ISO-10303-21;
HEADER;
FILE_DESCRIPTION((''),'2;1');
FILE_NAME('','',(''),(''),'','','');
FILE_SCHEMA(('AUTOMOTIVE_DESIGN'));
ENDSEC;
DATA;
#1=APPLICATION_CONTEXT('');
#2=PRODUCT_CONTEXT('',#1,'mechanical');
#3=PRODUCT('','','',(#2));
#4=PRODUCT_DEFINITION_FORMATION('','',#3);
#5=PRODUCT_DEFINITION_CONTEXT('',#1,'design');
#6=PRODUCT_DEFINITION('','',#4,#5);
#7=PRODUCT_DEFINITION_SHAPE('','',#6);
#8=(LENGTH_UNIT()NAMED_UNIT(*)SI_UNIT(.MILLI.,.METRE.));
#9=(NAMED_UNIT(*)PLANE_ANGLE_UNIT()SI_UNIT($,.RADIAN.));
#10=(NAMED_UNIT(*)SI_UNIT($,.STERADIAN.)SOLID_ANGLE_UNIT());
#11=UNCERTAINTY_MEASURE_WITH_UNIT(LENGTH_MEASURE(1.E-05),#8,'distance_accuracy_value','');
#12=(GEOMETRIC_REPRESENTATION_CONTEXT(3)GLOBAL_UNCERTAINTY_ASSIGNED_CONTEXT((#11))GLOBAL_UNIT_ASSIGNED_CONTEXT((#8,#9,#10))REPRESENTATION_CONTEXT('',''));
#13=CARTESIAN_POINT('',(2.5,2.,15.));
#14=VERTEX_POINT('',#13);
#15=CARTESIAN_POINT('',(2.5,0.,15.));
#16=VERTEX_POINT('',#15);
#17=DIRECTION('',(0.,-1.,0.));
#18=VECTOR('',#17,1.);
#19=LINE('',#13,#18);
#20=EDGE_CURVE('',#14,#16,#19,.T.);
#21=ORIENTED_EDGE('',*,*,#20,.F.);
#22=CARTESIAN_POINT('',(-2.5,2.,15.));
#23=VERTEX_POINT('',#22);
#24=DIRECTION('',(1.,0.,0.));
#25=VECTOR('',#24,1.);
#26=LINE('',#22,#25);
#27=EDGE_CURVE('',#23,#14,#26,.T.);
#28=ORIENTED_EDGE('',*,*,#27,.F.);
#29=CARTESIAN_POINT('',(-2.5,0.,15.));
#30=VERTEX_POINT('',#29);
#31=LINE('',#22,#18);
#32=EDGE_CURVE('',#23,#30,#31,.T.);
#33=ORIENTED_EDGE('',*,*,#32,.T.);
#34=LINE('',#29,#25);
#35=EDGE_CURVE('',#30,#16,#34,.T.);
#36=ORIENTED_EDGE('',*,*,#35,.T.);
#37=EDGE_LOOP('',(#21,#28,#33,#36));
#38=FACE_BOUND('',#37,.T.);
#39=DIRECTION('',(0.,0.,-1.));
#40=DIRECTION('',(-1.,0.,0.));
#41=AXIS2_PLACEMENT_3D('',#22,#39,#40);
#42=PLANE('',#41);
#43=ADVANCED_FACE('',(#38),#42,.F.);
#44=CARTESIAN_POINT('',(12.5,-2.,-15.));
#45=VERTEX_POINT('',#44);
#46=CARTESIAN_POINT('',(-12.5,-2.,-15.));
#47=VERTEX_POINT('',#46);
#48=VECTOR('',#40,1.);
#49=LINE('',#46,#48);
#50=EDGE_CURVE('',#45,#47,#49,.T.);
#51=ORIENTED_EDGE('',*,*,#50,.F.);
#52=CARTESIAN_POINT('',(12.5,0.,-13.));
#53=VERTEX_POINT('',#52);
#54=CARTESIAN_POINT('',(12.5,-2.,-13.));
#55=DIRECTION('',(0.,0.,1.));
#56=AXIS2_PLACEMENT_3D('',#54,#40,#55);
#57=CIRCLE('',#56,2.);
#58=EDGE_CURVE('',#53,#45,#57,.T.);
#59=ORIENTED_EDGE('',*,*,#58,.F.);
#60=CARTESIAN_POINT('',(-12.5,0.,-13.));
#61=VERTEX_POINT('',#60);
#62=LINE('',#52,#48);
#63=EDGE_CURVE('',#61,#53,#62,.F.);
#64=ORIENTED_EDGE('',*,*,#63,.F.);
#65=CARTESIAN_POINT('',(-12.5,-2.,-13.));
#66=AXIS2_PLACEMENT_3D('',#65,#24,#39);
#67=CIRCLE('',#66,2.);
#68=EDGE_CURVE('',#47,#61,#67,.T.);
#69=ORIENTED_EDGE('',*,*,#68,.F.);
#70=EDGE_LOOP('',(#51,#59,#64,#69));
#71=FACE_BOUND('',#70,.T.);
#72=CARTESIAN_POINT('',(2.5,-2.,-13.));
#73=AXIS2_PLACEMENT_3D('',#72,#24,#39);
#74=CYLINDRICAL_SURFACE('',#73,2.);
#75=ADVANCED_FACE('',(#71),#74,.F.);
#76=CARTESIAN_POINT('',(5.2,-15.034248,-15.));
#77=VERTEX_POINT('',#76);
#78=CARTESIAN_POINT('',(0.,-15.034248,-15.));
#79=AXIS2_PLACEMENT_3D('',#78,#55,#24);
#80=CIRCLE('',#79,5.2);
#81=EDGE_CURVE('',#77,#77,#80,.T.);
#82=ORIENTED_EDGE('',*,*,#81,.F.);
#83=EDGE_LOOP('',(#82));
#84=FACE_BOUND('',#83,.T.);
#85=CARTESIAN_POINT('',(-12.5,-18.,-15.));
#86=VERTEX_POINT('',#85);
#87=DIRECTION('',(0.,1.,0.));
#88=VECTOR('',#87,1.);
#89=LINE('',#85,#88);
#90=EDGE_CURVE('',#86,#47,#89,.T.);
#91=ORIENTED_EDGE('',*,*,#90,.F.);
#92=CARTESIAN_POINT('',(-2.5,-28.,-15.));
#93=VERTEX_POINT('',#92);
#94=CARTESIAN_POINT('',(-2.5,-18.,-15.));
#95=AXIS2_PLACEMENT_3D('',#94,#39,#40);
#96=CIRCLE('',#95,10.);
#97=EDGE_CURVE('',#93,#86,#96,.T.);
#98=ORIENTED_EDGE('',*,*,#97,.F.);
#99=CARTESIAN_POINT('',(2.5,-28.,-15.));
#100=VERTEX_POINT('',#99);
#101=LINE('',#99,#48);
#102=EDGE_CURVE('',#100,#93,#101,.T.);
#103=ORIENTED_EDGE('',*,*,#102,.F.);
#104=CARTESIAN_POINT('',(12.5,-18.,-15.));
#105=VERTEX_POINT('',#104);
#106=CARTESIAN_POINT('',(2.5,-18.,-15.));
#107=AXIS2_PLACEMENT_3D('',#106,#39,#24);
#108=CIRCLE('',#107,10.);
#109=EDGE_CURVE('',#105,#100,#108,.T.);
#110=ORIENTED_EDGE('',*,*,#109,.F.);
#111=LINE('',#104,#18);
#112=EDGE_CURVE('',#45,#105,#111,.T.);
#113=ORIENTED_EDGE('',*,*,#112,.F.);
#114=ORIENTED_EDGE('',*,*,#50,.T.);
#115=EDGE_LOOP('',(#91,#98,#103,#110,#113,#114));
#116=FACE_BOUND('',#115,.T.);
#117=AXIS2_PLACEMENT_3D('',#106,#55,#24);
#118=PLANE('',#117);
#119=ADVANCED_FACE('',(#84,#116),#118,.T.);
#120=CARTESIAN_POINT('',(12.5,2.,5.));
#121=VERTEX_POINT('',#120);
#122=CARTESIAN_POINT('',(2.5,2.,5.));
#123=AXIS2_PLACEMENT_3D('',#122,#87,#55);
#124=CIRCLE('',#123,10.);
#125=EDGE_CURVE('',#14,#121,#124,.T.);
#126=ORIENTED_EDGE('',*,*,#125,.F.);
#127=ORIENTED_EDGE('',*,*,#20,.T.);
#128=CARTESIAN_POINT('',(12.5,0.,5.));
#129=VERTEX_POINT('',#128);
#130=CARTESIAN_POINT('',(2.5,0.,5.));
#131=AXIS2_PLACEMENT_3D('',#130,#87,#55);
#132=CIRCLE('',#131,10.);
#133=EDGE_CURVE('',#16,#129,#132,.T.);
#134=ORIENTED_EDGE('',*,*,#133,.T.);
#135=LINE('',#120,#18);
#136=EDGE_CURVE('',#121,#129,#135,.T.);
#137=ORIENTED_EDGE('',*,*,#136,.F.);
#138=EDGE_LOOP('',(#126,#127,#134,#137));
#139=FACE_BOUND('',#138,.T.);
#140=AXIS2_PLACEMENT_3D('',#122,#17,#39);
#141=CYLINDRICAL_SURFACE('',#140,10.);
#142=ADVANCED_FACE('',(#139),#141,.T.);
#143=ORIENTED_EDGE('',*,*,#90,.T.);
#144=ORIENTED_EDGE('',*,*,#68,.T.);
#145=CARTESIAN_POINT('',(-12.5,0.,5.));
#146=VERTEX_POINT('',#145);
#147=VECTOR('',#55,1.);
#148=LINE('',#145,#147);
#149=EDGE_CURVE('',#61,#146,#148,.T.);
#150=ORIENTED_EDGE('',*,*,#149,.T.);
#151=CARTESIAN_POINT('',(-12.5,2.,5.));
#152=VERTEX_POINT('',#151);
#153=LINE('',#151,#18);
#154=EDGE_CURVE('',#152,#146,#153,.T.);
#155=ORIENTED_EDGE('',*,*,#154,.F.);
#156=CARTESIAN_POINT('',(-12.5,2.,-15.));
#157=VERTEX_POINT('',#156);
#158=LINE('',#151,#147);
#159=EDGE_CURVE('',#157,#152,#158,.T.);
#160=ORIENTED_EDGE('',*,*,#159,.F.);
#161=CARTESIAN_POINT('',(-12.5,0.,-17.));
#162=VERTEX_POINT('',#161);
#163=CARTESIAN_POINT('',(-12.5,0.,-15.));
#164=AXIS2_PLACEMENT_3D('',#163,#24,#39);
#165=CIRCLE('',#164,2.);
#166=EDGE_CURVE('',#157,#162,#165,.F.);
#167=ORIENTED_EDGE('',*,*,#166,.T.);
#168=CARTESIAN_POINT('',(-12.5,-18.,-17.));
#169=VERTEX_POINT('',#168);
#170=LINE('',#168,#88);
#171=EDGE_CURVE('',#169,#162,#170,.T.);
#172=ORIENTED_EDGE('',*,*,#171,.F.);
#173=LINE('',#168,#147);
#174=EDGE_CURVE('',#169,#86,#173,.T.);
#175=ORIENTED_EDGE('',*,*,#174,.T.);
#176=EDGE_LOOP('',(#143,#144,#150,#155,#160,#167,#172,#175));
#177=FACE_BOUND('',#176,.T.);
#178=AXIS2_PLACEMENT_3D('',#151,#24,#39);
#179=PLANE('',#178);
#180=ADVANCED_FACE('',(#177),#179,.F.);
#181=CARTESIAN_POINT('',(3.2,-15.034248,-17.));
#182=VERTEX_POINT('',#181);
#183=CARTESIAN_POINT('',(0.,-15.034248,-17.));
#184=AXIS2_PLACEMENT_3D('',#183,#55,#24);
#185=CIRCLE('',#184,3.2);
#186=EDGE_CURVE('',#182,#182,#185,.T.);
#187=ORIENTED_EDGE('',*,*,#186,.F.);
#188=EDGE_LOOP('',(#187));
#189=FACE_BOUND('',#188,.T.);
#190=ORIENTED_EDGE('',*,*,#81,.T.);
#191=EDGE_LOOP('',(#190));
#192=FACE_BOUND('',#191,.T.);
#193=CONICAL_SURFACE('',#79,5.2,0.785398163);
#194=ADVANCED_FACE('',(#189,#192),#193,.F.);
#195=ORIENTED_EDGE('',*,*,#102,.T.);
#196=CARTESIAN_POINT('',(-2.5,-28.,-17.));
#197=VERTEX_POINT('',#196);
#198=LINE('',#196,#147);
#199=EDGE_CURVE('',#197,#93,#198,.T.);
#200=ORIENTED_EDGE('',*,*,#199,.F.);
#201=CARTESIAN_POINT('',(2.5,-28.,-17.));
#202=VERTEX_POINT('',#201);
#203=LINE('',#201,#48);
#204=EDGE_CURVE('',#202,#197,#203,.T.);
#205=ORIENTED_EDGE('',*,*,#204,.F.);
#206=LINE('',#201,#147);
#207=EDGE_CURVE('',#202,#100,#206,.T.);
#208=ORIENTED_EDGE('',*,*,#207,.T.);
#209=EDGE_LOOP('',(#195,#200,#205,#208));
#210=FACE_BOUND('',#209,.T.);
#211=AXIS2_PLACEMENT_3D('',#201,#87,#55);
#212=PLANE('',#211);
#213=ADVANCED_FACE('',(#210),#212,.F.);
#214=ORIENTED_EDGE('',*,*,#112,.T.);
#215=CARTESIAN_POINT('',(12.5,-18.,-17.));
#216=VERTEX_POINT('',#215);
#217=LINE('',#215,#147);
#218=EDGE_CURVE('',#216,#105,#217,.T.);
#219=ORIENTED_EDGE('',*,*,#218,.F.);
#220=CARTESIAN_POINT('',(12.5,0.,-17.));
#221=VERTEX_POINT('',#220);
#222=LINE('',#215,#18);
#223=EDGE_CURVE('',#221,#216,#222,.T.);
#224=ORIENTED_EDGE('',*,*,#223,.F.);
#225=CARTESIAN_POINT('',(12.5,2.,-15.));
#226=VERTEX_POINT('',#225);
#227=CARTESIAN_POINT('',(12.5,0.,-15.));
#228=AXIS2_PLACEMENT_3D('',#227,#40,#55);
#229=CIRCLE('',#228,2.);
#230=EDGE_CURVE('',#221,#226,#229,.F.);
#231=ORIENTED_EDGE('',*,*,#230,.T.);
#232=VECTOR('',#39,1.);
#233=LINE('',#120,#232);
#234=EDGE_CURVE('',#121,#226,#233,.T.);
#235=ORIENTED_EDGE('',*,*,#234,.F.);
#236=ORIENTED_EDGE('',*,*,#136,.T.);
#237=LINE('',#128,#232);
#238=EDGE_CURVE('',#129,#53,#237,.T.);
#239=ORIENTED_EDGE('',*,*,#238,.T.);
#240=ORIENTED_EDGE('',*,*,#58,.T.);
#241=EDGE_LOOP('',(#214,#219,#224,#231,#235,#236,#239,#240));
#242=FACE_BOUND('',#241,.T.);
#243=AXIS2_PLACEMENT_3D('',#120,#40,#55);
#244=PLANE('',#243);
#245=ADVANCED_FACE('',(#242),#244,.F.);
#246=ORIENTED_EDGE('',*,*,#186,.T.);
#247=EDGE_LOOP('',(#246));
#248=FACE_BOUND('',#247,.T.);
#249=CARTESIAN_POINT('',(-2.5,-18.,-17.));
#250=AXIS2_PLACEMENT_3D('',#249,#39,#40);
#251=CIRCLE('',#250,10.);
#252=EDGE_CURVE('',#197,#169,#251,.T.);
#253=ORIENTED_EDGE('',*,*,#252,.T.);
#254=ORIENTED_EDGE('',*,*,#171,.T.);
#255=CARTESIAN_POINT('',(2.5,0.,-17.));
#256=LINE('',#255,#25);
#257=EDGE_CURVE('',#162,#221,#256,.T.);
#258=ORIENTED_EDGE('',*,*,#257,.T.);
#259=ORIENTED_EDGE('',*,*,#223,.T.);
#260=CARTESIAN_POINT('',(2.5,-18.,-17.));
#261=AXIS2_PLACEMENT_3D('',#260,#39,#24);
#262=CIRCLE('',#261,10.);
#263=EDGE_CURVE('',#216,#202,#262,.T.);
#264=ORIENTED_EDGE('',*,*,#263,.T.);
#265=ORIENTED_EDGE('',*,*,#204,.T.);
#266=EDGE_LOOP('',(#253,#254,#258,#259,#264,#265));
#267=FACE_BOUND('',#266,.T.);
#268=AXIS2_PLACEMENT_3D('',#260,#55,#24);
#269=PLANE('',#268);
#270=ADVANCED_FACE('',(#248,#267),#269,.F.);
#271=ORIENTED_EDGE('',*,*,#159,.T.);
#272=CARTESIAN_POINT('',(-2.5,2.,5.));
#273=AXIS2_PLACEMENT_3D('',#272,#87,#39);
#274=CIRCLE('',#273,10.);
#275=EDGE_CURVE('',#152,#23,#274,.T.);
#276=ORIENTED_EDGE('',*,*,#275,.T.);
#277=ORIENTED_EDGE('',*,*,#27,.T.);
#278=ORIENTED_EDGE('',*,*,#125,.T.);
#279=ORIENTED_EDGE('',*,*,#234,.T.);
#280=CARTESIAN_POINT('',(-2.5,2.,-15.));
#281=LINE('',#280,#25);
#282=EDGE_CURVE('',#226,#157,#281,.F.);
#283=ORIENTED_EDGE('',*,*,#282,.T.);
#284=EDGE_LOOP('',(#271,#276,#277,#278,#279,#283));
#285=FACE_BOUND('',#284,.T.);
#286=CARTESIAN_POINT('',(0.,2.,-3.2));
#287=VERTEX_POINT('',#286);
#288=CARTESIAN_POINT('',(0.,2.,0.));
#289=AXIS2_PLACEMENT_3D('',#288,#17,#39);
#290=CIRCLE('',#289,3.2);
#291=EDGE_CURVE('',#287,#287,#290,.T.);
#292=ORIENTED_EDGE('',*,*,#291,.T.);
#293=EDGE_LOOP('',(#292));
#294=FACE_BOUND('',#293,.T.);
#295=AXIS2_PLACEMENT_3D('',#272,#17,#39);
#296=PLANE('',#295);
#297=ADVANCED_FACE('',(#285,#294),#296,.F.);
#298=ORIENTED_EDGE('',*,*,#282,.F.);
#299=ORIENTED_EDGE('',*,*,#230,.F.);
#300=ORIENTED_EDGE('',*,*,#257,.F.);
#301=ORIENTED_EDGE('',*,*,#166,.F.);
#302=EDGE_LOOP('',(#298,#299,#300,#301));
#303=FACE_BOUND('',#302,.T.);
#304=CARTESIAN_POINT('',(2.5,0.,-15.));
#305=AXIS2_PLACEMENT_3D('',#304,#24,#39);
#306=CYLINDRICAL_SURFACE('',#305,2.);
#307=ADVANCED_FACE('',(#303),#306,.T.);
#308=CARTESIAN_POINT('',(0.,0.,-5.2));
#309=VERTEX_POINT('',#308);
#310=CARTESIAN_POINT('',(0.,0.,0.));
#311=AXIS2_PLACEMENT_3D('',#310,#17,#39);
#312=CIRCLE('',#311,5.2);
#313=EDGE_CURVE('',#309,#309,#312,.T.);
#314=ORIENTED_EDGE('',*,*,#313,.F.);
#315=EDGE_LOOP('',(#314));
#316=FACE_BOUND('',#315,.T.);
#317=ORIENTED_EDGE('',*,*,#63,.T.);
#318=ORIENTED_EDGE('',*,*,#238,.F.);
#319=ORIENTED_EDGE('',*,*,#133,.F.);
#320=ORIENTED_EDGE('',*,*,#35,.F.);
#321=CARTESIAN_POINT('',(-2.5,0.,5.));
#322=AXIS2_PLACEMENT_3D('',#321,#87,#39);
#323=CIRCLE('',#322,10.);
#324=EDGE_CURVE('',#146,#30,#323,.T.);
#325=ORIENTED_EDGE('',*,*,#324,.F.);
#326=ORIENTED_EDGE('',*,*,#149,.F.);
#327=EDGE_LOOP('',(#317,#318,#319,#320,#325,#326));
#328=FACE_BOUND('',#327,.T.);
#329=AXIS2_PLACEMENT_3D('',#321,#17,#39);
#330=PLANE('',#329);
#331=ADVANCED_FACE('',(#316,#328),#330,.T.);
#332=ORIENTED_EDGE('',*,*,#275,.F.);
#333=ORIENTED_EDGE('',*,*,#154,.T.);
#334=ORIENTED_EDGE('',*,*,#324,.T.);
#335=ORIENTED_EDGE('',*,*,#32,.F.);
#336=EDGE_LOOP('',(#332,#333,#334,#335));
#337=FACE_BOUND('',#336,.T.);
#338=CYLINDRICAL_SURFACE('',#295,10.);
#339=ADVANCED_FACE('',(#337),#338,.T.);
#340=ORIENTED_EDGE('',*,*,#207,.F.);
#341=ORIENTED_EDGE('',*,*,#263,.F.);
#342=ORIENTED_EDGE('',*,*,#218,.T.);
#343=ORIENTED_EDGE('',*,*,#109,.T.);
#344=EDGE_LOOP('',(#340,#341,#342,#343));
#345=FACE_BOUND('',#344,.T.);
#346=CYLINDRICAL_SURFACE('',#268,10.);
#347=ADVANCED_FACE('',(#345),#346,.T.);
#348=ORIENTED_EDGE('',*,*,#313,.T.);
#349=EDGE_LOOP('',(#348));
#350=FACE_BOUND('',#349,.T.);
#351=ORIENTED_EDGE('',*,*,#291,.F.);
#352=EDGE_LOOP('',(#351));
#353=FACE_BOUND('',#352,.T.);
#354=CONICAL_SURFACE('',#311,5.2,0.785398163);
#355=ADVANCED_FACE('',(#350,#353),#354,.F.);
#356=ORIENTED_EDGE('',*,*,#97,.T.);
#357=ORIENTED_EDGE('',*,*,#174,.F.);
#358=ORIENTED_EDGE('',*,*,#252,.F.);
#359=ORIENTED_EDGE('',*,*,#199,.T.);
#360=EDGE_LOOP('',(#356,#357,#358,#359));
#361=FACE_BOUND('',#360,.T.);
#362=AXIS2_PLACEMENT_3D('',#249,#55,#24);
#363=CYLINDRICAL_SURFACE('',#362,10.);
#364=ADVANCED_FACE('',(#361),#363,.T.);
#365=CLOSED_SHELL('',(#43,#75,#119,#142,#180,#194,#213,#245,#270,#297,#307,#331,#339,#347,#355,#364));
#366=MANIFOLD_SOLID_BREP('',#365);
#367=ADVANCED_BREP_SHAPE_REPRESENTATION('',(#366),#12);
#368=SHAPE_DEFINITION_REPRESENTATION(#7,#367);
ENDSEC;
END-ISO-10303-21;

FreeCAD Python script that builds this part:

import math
import FreeCAD as App
import Part
import Sketcher
from FreeCAD import Vector
Q = App.Units.Quantity


def edges_at(feature, points):
    """Names of the edges that pass closest to the given points."""
    edges = feature.Shape.Edges
    near = lambda p: min(range(len(edges)), key=lambda i: edges[i].distToShape(Part.Vertex(*p))[0])
    return sorted({f"Edge{near(p) + 1}" for p in points})

doc = App.newDocument("Part")
body = doc.addObject("PartDesign::Body", "Body")

# Sketch on XZ plane
sketch1 = doc.addObject("Sketcher::SketchObject", "Sketch")
body.addObject(sketch1)
sketch1.AttachmentSupport = (doc.XZ_Plane, [""])
sketch1.MapMode = "FlatFace"
sketch1.addGeometry([
    Part.LineSegment(Vector(-2, 15, 0), Vector(2, 15, 0)),  # 0
    Part.ArcOfCircle(Part.Circle(Vector(2, 5, 0), Vector(0, 0, 1), 10), math.radians(0), math.radians(90)),  # 1
    Part.LineSegment(Vector(12, 5, 0), Vector(12, -15, 0)),  # 2
    Part.LineSegment(Vector(12, -15, 0), Vector(-12, -15, 0)),  # 3
    Part.LineSegment(Vector(-12, -15, 0), Vector(-12, 5, 0)),  # 4
    Part.ArcOfCircle(Part.Circle(Vector(-2, 5, 0), Vector(0, 0, 1), 10), math.radians(90), math.radians(180)),  # 5
], False)
sketch1.addConstraint([
    Sketcher.Constraint("Tangent", 0, 2, 1, 2),
    Sketcher.Constraint("Tangent", 1, 1, 2, 1),
    Sketcher.Constraint("Coincident", 2, 2, 3, 1),
    Sketcher.Constraint("Coincident", 3, 2, 4, 1),
    Sketcher.Constraint("Tangent", 4, 2, 5, 2),
    Sketcher.Constraint("Tangent", 5, 1, 0, 1),
    Sketcher.Constraint("Horizontal", 0),
    Sketcher.Constraint("Vertical", 2),
    Sketcher.Constraint("Horizontal", 3),
    Sketcher.Constraint("Vertical", 4),
    Sketcher.Constraint("Equal", 1, 5),
    Sketcher.Constraint("Radius", 1, Q("10 mm")),
    Sketcher.Constraint("DistanceX", 0, 1, 0, 2, Q("5 mm")),
    Sketcher.Constraint("DistanceY", 2, 2, 2, 1, Q("20 mm")),
    Sketcher.Constraint("DistanceY", -1, 1, 1, 3, Q("5 mm")),
    Sketcher.Constraint("DistanceX", -1, 1, 1, 3, Q("2.5 mm")),
])
pad1 = doc.addObject("PartDesign::Pad", "Pad")
body.addObject(pad1)
pad1.Profile = sketch1
pad1.Length = 2
pad1.Reversed = True

# Sketch on XY plane
sketch2 = doc.addObject("Sketcher::SketchObject", "Sketch001")
body.addObject(sketch2)
sketch2.AttachmentSupport = (doc.XY_Plane, [""])
sketch2.MapMode = "FlatFace"
sketch2.AttachmentOffset = App.Placement(Vector(0, 0, -15), App.Rotation())
sketch2.addGeometry([
    Part.LineSegment(Vector(2, -28, 0), Vector(-2, -28, 0)),  # 0
    Part.ArcOfCircle(Part.Circle(Vector(-2, -18, 0), Vector(0, 0, 1), 10), math.radians(180), math.radians(270)),  # 1
    Part.LineSegment(Vector(-12, -18, 0), Vector(-12, 2, 0)),  # 2
    Part.LineSegment(Vector(-12, 2, 0), Vector(12, 2, 0)),  # 3
    Part.LineSegment(Vector(12, 2, 0), Vector(12, -18, 0)),  # 4
    Part.ArcOfCircle(Part.Circle(Vector(2, -18, 0), Vector(0, 0, 1), 10), math.radians(-90), math.radians(0)),  # 5
], False)
sketch2.addConstraint([
    Sketcher.Constraint("Tangent", 0, 2, 1, 2),
    Sketcher.Constraint("Tangent", 1, 1, 2, 1),
    Sketcher.Constraint("Coincident", 2, 2, 3, 1),
    Sketcher.Constraint("Coincident", 3, 2, 4, 1),
    Sketcher.Constraint("Tangent", 4, 2, 5, 2),
    Sketcher.Constraint("Tangent", 5, 1, 0, 1),
    Sketcher.Constraint("Horizontal", 0),
    Sketcher.Constraint("Vertical", 2),
    Sketcher.Constraint("Horizontal", 3),
    Sketcher.Constraint("Vertical", 4),
    Sketcher.Constraint("Equal", 1, 5),
    Sketcher.Constraint("Radius", 1, Q("10 mm")),
    Sketcher.Constraint("DistanceX", 0, 2, 0, 1, Q("5 mm")),
    Sketcher.Constraint("DistanceY", 2, 1, 2, 2, Q("20 mm")),
    Sketcher.Constraint("DistanceY", 1, 3, -1, 1, Q("18 mm")),
    Sketcher.Constraint("DistanceX", 1, 3, -1, 1, Q("2.5 mm")),
])
pad2 = doc.addObject("PartDesign::Pad", "Pad001")
body.addObject(pad2)
pad2.Profile = sketch2
pad2.Length = 2
pad2.Reversed = True
doc.recompute()

fillet = doc.addObject("PartDesign::Fillet", "Fillet")
body.addObject(fillet)
fillet.Base = (pad2, edges_at(pad2, [(0, 0, -15)]))
fillet.Radius = 2
doc.recompute()

fillet2 = doc.addObject("PartDesign::Fillet", "Fillet001")
body.addObject(fillet2)
fillet2.Base = (fillet, edges_at(fillet, [(0, 2, -17)]))
fillet2.Radius = 2

# Sketch on YZ plane
sketch3 = doc.addObject("Sketcher::SketchObject", "Sketch002")
body.addObject(sketch3)
sketch3.AttachmentSupport = (doc.YZ_Plane, [""])
sketch3.MapMode = "FlatFace"
sketch3.addGeometry([
    Part.LineSegment(Vector(-15.03, -17, 0), Vector(-15.03, -15, 0)),  # 0
    Part.LineSegment(Vector(-15.03, -15, 0), Vector(-20.23, -15, 0)),  # 1
    Part.LineSegment(Vector(-20.23, -15, 0), Vector(-17.78, -17.45, 0)),  # 2
    Part.LineSegment(Vector(-17.78, -17.45, 0), Vector(-17.78, -17, 0)),  # 3
    Part.LineSegment(Vector(-17.78, -17, 0), Vector(-15.03, -17, 0)),  # 4
], False)
sketch3.addGeometry(Part.LineSegment(Vector(-15.03, -15, 0), Vector(-15.03, -17.45, 0)), True)  # axis
sketch3.addConstraint([
    Sketcher.Constraint("Coincident", 0, 2, 1, 1),
    Sketcher.Constraint("Coincident", 1, 2, 2, 1),
    Sketcher.Constraint("Coincident", 2, 2, 3, 1),
    Sketcher.Constraint("Coincident", 3, 2, 4, 1),
    Sketcher.Constraint("Coincident", 4, 2, 0, 1),
    Sketcher.Constraint("Vertical", 0),
    Sketcher.Constraint("Horizontal", 1),
    Sketcher.Constraint("Vertical", 3),
    Sketcher.Constraint("Horizontal", 4),
    Sketcher.Constraint("Vertical", 5),
    Sketcher.Constraint("Coincident", 5, 1, 0, 2),
    Sketcher.Constraint("Horizontal", 2, 2, 5, 2),
    Sketcher.Constraint("DistanceY", 0, 1, 0, 2, Q("2 mm")),
    Sketcher.Constraint("Angle", 2, Q("-45 deg")),
    Sketcher.Constraint("DistanceX", 1, 2, 1, 1, Q("5.2 mm")),
    Sketcher.Constraint("DistanceY", 0, 2, -1, 1, Q("15 mm")),
    Sketcher.Constraint("DistanceX", 4, 1, 4, 2, Q("2.75 mm")),
    Sketcher.Constraint("DistanceX", 0, 2, -1, 1, Q("15.034248 mm")),
])
groove = doc.addObject("PartDesign::Groove", "Groove")
body.addObject(groove)
groove.Profile = sketch3
groove.ReferenceAxis = (sketch3, ["Axis0"])
groove.Angle = 360

# Sketch on YZ plane
sketch4 = doc.addObject("Sketcher::SketchObject", "Sketch003")
body.addObject(sketch4)
sketch4.AttachmentSupport = (doc.YZ_Plane, [""])
sketch4.MapMode = "FlatFace"
sketch4.addGeometry([
    Part.LineSegment(Vector(2, 0, 0), Vector(0, 0, 0)),  # 0
    Part.LineSegment(Vector(0, 0, 0), Vector(0, -5.2, 0)),  # 1
    Part.LineSegment(Vector(0, -5.2, 0), Vector(2.45, -2.75, 0)),  # 2
    Part.LineSegment(Vector(2.45, -2.75, 0), Vector(2, -2.75, 0)),  # 3
    Part.LineSegment(Vector(2, -2.75, 0), Vector(2, 0, 0)),  # 4
], False)
sketch4.addConstraint([
    Sketcher.Constraint("Coincident", 0, 2, 1, 1),
    Sketcher.Constraint("Coincident", 1, 2, 2, 1),
    Sketcher.Constraint("Coincident", 2, 2, 3, 1),
    Sketcher.Constraint("Coincident", 3, 2, 4, 1),
    Sketcher.Constraint("Coincident", 4, 2, 0, 1),
    Sketcher.Constraint("Horizontal", 0),
    Sketcher.Constraint("Vertical", 1),
    Sketcher.Constraint("Horizontal", 3),
    Sketcher.Constraint("Vertical", 4),
    Sketcher.Constraint("Coincident", 0, 2, -1, 1),
    Sketcher.Constraint("DistanceX", 0, 2, 0, 1, Q("2 mm")),
    Sketcher.Constraint("Angle", 2, Q("45 deg")),
    Sketcher.Constraint("DistanceY", 1, 2, 1, 1, Q("5.2 mm")),
    Sketcher.Constraint("DistanceX", 3, 2, 3, 1, Q("0.45 mm")),
])
groove2 = doc.addObject("PartDesign::Groove", "Groove001")
body.addObject(groove2)
groove2.Profile = sketch4
groove2.ReferenceAxis = (sketch4, ["H_Axis"])
groove2.Angle = 360

doc.recompute()
